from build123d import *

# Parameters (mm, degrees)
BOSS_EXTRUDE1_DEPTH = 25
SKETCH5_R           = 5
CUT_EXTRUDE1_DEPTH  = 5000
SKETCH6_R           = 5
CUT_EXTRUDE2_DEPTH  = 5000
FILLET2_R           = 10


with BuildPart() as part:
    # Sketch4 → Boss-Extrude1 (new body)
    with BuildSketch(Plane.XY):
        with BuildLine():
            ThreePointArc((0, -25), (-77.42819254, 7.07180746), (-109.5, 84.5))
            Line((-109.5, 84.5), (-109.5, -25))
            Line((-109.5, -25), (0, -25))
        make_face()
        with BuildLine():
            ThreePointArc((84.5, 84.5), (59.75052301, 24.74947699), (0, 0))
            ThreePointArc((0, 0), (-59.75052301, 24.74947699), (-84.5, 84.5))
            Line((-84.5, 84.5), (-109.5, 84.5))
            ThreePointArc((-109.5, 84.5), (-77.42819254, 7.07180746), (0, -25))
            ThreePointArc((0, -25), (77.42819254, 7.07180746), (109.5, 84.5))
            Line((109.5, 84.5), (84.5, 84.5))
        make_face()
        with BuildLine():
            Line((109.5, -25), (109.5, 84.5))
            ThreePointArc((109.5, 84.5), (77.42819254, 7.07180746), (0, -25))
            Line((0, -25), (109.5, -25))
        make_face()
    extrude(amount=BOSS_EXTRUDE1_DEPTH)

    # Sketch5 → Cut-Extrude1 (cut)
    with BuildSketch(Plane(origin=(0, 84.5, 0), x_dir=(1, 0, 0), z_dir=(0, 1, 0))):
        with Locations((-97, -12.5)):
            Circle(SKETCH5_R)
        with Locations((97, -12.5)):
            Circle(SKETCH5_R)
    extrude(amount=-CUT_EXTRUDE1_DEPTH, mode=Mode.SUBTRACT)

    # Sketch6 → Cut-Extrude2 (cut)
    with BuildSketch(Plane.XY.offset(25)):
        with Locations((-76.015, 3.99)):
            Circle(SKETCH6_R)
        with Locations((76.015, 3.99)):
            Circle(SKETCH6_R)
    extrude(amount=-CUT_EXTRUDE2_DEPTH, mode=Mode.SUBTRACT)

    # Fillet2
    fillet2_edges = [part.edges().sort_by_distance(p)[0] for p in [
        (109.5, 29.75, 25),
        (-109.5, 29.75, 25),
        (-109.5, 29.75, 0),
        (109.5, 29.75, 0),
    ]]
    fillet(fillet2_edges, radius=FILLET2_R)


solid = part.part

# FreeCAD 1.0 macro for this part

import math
import FreeCAD as App
import Part
import Sketcher
from FreeCAD import Vector


def edges_at(feature, points):
    """Names of the edges that pass closest to the given points."""
    edges = feature.Shape.Edges
    near = lambda p: min(range(len(edges)), key=lambda i: edges[i].distToShape(Part.Vertex(*p))[0])
    return sorted({f"Edge{near(p) + 1}" for p in points})

doc = App.newDocument("Part")
body = doc.addObject("PartDesign::Body", "Body")

# Sketch on XY plane
sketch1 = doc.addObject("Sketcher::SketchObject", "Sketch")
body.addObject(sketch1)
sketch1.AttachmentSupport = (doc.XY_Plane, [""])
sketch1.MapMode = "FlatFace"
sketch1.addGeometry([
    Part.LineSegment(Vector(-109.5, 84.5, 0), Vector(-109.5, -25, 0)),  # 0
    Part.LineSegment(Vector(-109.5, -25, 0), Vector(109.5, -25, 0)),  # 1
    Part.LineSegment(Vector(109.5, -25, 0), Vector(109.5, 84.5, 0)),  # 2
    Part.LineSegment(Vector(109.5, 84.5, 0), Vector(84.5, 84.5, 0)),  # 3
    Part.ArcOfCircle(Part.Circle(Vector(0, 84.5, 0), Vector(0, 0, 1), 84.5), math.radians(-90), math.radians(0)),  # 4
    Part.ArcOfCircle(Part.Circle(Vector(0, 84.5, 0), Vector(0, 0, 1), 84.5), math.radians(-180), math.radians(-90)),  # 5
    Part.LineSegment(Vector(-84.5, 84.5, 0), Vector(-109.5, 84.5, 0)),  # 6
], False)
sketch1.addConstraint([
    Sketcher.Constraint("Coincident", 0, 2, 1, 1),
    Sketcher.Constraint("Coincident", 1, 2, 2, 1),
    Sketcher.Constraint("Coincident", 2, 2, 3, 1),
    Sketcher.Constraint("Coincident", 3, 2, 4, 2),
    Sketcher.Constraint("Tangent", 4, 1, 5, 2),
    Sketcher.Constraint("Coincident", 5, 1, 6, 1),
    Sketcher.Constraint("Coincident", 6, 2, 0, 1),
    Sketcher.Constraint("Vertical", 0),
    Sketcher.Constraint("Horizontal", 1),
    Sketcher.Constraint("Vertical", 2),
    Sketcher.Constraint("Horizontal", 3),
    Sketcher.Constraint("Horizontal", 6),
    Sketcher.Constraint("Coincident", 4, 1, -1, 1),
    Sketcher.Constraint("Equal", 4, 5),
    Sketcher.Constraint("Symmetric", 3, 2, 5, 1, -2),
    Sketcher.Constraint("Horizontal", 5, 3, 2, 2),
    Sketcher.Constraint("Equal", 3, 6),
    Sketcher.Constraint("Radius", 4, 84.5),
    Sketcher.Constraint("DistanceX", 1, 1, 1, 2, 219.0),
    Sketcher.Constraint("DistanceY", 0, 2, 0, 1, 109.5),
])
pad1 = doc.addObject("PartDesign::Pad", "Pad")
body.addObject(pad1)
pad1.Profile = sketch1
pad1.Length = 25

# Sketch on XZ plane
sketch2 = doc.addObject("Sketcher::SketchObject", "Sketch001")
body.addObject(sketch2)
sketch2.AttachmentSupport = (doc.XZ_Plane, [""])
sketch2.MapMode = "FlatFace"
sketch2.AttachmentOffset = App.Placement(Vector(0, 0, -84.5), App.Rotation())
sketch2.addGeometry([
    Part.Circle(Vector(-97, 12.5, 0), Vector(0, 0, 1), 5),
    Part.Circle(Vector(97, 12.5, 0), Vector(0, 0, 1), 5),
], False)
sketch2.addConstraint([
    Sketcher.Constraint("Equal", 0, 1),
    Sketcher.Constraint("Symmetric", 0, 3, 1, 3, -2),
    Sketcher.Constraint("Diameter", 0, 10.0),
    Sketcher.Constraint("DistanceX", 0, 3, -1, 1, 97.0),
    Sketcher.Constraint("DistanceY", -1, 1, 0, 3, 12.5),
])
pocket1 = doc.addObject("PartDesign::Pocket", "Pocket")
body.addObject(pocket1)
pocket1.Profile = sketch2
pocket1.Length = 5000
pocket1.Reversed = True

# Sketch on XY plane
sketch3 = doc.addObject("Sketcher::SketchObject", "Sketch002")
body.addObject(sketch3)
sketch3.AttachmentSupport = (doc.XY_Plane, [""])
sketch3.MapMode = "FlatFace"
sketch3.AttachmentOffset = App.Placement(Vector(0, 0, 25), App.Rotation())
sketch3.addGeometry([
    Part.Circle(Vector(-76.015, 3.99, 0), Vector(0, 0, 1), 5),
    Part.Circle(Vector(76.015, 3.99, 0), Vector(0, 0, 1), 5),
], False)
sketch3.addConstraint([
    Sketcher.Constraint("Equal", 0, 1),
    Sketcher.Constraint("Symmetric", 0, 3, 1, 3, -2),
    Sketcher.Constraint("Diameter", 0, 10.0),
    Sketcher.Constraint("DistanceY", -1, 1, 0, 3, 3.99),
    Sketcher.Constraint("DistanceX", 0, 3, 1, 3, 152.03),
])
pocket2 = doc.addObject("PartDesign::Pocket", "Pocket001")
body.addObject(pocket2)
pocket2.Profile = sketch3
pocket2.Length = 5000
doc.recompute()

fillet = doc.addObject("PartDesign::Fillet", "Fillet")
body.addObject(fillet)
fillet.Base = (pocket2, edges_at(pocket2, [
    (109.5, 29.75, 25),
    (-109.5, 29.75, 25),
    (-109.5, 29.75, 0),
    (109.5, 29.75, 0),
]))
fillet.Radius = 10

doc.recompute()
